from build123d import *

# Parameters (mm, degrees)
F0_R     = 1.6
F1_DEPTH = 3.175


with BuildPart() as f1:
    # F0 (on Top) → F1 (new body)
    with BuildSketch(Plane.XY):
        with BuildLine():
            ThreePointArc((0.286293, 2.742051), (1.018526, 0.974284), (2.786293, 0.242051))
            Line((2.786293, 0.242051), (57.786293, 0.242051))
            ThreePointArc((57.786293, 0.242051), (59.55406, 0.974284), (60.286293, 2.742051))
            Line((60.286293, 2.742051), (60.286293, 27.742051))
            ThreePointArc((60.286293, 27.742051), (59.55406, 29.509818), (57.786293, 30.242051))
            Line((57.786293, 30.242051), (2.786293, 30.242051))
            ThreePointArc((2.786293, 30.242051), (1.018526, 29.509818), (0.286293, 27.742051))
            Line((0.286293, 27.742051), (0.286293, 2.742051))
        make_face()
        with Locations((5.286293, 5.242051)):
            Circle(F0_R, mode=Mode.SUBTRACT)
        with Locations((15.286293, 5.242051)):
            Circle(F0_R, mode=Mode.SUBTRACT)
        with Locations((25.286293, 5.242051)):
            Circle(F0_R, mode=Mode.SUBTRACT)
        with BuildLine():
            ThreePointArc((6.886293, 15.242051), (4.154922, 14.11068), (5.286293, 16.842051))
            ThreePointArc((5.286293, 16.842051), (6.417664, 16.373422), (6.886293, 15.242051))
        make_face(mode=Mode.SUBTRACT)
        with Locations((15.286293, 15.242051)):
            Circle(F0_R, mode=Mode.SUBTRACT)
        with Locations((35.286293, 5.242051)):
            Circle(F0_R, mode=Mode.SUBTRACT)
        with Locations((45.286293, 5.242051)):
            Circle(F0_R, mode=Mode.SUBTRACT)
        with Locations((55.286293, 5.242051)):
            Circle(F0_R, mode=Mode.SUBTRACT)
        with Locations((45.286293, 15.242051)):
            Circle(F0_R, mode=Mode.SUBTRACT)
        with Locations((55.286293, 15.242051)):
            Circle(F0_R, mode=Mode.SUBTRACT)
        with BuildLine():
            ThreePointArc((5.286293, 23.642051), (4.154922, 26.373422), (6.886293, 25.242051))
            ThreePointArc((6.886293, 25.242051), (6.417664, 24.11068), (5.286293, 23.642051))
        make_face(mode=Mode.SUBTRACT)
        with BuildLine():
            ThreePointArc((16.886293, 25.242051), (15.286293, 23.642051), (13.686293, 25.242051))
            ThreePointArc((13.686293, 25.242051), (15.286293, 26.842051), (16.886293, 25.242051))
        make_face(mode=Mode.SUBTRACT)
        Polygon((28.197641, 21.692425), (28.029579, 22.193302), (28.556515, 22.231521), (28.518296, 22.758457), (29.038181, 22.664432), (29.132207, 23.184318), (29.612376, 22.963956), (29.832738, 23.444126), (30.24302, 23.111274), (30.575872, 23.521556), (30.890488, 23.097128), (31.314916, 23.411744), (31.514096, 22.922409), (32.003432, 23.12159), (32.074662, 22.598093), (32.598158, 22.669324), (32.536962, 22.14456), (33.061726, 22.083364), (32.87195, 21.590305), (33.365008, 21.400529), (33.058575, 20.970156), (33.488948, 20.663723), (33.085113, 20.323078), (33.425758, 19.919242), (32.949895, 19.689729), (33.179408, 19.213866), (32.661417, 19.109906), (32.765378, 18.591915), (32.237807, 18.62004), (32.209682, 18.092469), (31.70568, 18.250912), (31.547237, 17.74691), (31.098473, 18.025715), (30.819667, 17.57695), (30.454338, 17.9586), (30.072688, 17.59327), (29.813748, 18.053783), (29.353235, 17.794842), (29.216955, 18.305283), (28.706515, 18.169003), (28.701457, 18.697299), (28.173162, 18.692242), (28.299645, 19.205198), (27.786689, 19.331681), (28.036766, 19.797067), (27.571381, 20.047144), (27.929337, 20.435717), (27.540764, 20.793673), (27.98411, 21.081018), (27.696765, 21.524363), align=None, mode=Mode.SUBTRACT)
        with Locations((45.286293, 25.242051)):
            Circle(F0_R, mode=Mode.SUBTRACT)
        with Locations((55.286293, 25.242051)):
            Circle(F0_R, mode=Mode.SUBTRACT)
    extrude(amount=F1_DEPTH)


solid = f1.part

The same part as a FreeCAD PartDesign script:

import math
import FreeCAD as App
import Part
import Sketcher
from FreeCAD import Vector

doc = App.newDocument("Part")
params = doc.addObject("Spreadsheet::Sheet", "Params")
for row, (alias, value) in enumerate([
    ("sketch1_diameter", "3.2 mm"),
    ("sketch1_radius", "2.5 mm"),
    ("sketch1_width", "55 mm"),
    ("sketch1_height", "25 mm"),
    ("pad1_length", "3.175 mm"),
], start=1):
    params.set(f"A{row}", alias)
    params.set(f"B{row}", "=" + value)
    params.setAlias(f"B{row}", alias)

body = doc.addObject("PartDesign::Body", "Body")

# Sketch on XY plane
sketch1 = body.newObject("Sketcher::SketchObject", "Sketch")
sketch1.AttachmentSupport = (doc.getObject("XY_Plane"), [""])
sketch1.MapMode = "FlatFace"
sketch1.addGeometry([
    Part.ArcOfCircle(Part.Circle(Vector(2.786293, 2.742051, 0), Vector(0, 0, 1), 2.5), math.radians(179.999996), math.radians(270.000004)),  # 0
    Part.LineSegment(Vector(2.786293, 0.242051, 0), Vector(57.786293, 0.242051, 0)),  # 1
    Part.ArcOfCircle(Part.Circle(Vector(57.786293, 2.742051, 0), Vector(0, 0, 1), 2.5), math.radians(-90.000004), math.radians(0.000004)),  # 2
    Part.LineSegment(Vector(60.286293, 2.742051, 0), Vector(60.286293, 27.742051, 0)),  # 3
    Part.ArcOfCircle(Part.Circle(Vector(57.786293, 27.742051, 0), Vector(0, 0, 1), 2.5), math.radians(-0.000004), math.radians(90.000004)),  # 4
    Part.LineSegment(Vector(57.786293, 30.242051, 0), Vector(2.786293, 30.242051, 0)),  # 5
    Part.ArcOfCircle(Part.Circle(Vector(2.786293, 27.742051, 0), Vector(0, 0, 1), 2.5), math.radians(89.999996), math.radians(180.000004)),  # 6
    Part.LineSegment(Vector(0.286293, 27.742051, 0), Vector(0.286293, 2.742051, 0)),  # 7
    Part.Circle(Vector(5.286293, 5.242051, 0), Vector(0, 0, 1), 1.6),  # 8
    Part.Circle(Vector(15.286293, 5.242051, 0), Vector(0, 0, 1), 1.6),  # 9
    Part.Circle(Vector(25.286293, 5.242051, 0), Vector(0, 0, 1), 1.6),  # 10
    Part.ArcOfCircle(Part.Circle(Vector(5.286294, 15.242052, 0), Vector(0, 0, 1), 1.599999), math.radians(-0.000018), math.radians(90.000018)),  # 11
    Part.ArcOfCircle(Part.Circle(Vector(5.286293, 15.242051, 0), Vector(0, 0, 1), 1.6), math.radians(89.999997), math.radians(360.000003)),  # 12
    Part.Circle(Vector(15.286293, 15.242051, 0), Vector(0, 0, 1), 1.6),  # 13
    Part.Circle(Vector(35.286293, 5.242051, 0), Vector(0, 0, 1), 1.6),  # 14
    Part.Circle(Vector(45.286293, 5.242051, 0), Vector(0, 0, 1), 1.6),  # 15
    Part.Circle(Vector(55.286293, 5.242051, 0), Vector(0, 0, 1), 1.6),  # 16
    Part.Circle(Vector(45.286293, 15.242051, 0), Vector(0, 0, 1), 1.6),  # 17
    Part.Circle(Vector(55.286293, 15.242051, 0), Vector(0, 0, 1), 1.6),  # 18
    Part.ArcOfCircle(Part.Circle(Vector(5.286294, 25.24205, 0), Vector(0, 0, 1), 1.599999), math.radians(-90.000018), math.radians(0.000018)),  # 19
    Part.ArcOfCircle(Part.Circle(Vector(5.286293, 25.242051, 0), Vector(0, 0, 1), 1.6), math.radians(-0.000003), math.radians(270.000003)),  # 20
    Part.Circle(Vector(15.286293, 25.242051, 0), Vector(0, 0, 1), 1.6),  # 21
    Part.LineSegment(Vector(27.696765, 21.524363, 0), Vector(28.197641, 21.692425, 0)),  # 22
    Part.LineSegment(Vector(28.197641, 21.692425, 0), Vector(28.029579, 22.193302, 0)),  # 23
    Part.LineSegment(Vector(28.029579, 22.193302, 0), Vector(28.556515, 22.231521, 0)),  # 24
    Part.LineSegment(Vector(28.556515, 22.231521, 0), Vector(28.518296, 22.758457, 0)),  # 25
    Part.LineSegment(Vector(28.518296, 22.758457, 0), Vector(29.038181, 22.664432, 0)),  # 26
    Part.LineSegment(Vector(29.038181, 22.664432, 0), Vector(29.132207, 23.184318, 0)),  # 27
    Part.LineSegment(Vector(29.132207, 23.184318, 0), Vector(29.612376, 22.963956, 0)),  # 28
    Part.LineSegment(Vector(29.612376, 22.963956, 0), Vector(29.832738, 23.444126, 0)),  # 29
    Part.LineSegment(Vector(29.832738, 23.444126, 0), Vector(30.24302, 23.111274, 0)),  # 30
    Part.LineSegment(Vector(30.24302, 23.111274, 0), Vector(30.575872, 23.521556, 0)),  # 31
    Part.LineSegment(Vector(30.575872, 23.521556, 0), Vector(30.890488, 23.097128, 0)),  # 32
    Part.LineSegment(Vector(30.890488, 23.097128, 0), Vector(31.314916, 23.411744, 0)),  # 33
    Part.LineSegment(Vector(31.314916, 23.411744, 0), Vector(31.514096, 22.922409, 0)),  # 34
    Part.LineSegment(Vector(31.514096, 22.922409, 0), Vector(32.003432, 23.12159, 0)),  # 35
    Part.LineSegment(Vector(32.003432, 23.12159, 0), Vector(32.074662, 22.598093, 0)),  # 36
    Part.LineSegment(Vector(32.074662, 22.598093, 0), Vector(32.598158, 22.669324, 0)),  # 37
    Part.LineSegment(Vector(32.598158, 22.669324, 0), Vector(32.536962, 22.14456, 0)),  # 38
    Part.LineSegment(Vector(32.536962, 22.14456, 0), Vector(33.061726, 22.083364, 0)),  # 39
    Part.LineSegment(Vector(33.061726, 22.083364, 0), Vector(32.87195, 21.590305, 0)),  # 40
    Part.LineSegment(Vector(32.87195, 21.590305, 0), Vector(33.365008, 21.400529, 0)),  # 41
    Part.LineSegment(Vector(33.365008, 21.400529, 0), Vector(33.058575, 20.970156, 0)),  # 42
    Part.LineSegment(Vector(33.058575, 20.970156, 0), Vector(33.488948, 20.663723, 0)),  # 43
    Part.LineSegment(Vector(33.488948, 20.663723, 0), Vector(33.085113, 20.323078, 0)),  # 44
    Part.LineSegment(Vector(33.085113, 20.323078, 0), Vector(33.425758, 19.919242, 0)),  # 45
    Part.LineSegment(Vector(33.425758, 19.919242, 0), Vector(32.949895, 19.689729, 0)),  # 46
    Part.LineSegment(Vector(32.949895, 19.689729, 0), Vector(33.179408, 19.213866, 0)),  # 47
    Part.LineSegment(Vector(33.179408, 19.213866, 0), Vector(32.661417, 19.109906, 0)),  # 48
    Part.LineSegment(Vector(32.661417, 19.109906, 0), Vector(32.765378, 18.591915, 0)),  # 49
    Part.LineSegment(Vector(32.765378, 18.591915, 0), Vector(32.237807, 18.62004, 0)),  # 50
    Part.LineSegment(Vector(32.237807, 18.62004, 0), Vector(32.209682, 18.092469, 0)),  # 51
    Part.LineSegment(Vector(32.209682, 18.092469, 0), Vector(31.70568, 18.250912, 0)),  # 52
    Part.LineSegment(Vector(31.70568, 18.250912, 0), Vector(31.547237, 17.74691, 0)),  # 53
    Part.LineSegment(Vector(31.547237, 17.74691, 0), Vector(31.098473, 18.025715, 0)),  # 54
    Part.LineSegment(Vector(31.098473, 18.025715, 0), Vector(30.819667, 17.57695, 0)),  # 55
    Part.LineSegment(Vector(30.819667, 17.57695, 0), Vector(30.454338, 17.9586, 0)),  # 56
    Part.LineSegment(Vector(30.454338, 17.9586, 0), Vector(30.072688, 17.59327, 0)),  # 57
    Part.LineSegment(Vector(30.072688, 17.59327, 0), Vector(29.813748, 18.053783, 0)),  # 58
    Part.LineSegment(Vector(29.813748, 18.053783, 0), Vector(29.353235, 17.794842, 0)),  # 59
    Part.LineSegment(Vector(29.353235, 17.794842, 0), Vector(29.216955, 18.305283, 0)),  # 60
    Part.LineSegment(Vector(29.216955, 18.305283, 0), Vector(28.706515, 18.169003, 0)),  # 61
    Part.LineSegment(Vector(28.706515, 18.169003, 0), Vector(28.701457, 18.697299, 0)),  # 62
    Part.LineSegment(Vector(28.701457, 18.697299, 0), Vector(28.173162, 18.692242, 0)),  # 63
    Part.LineSegment(Vector(28.173162, 18.692242, 0), Vector(28.299645, 19.205198, 0)),  # 64
    Part.LineSegment(Vector(28.299645, 19.205198, 0), Vector(27.786689, 19.331681, 0)),  # 65
    Part.LineSegment(Vector(27.786689, 19.331681, 0), Vector(28.036766, 19.797067, 0)),  # 66
    Part.LineSegment(Vector(28.036766, 19.797067, 0), Vector(27.571381, 20.047144, 0)),  # 67
    Part.LineSegment(Vector(27.571381, 20.047144, 0), Vector(27.929337, 20.435717, 0)),  # 68
    Part.LineSegment(Vector(27.929337, 20.435717, 0), Vector(27.540764, 20.793673, 0)),  # 69
    Part.LineSegment(Vector(27.540764, 20.793673, 0), Vector(27.98411, 21.081018, 0)),  # 70
    Part.LineSegment(Vector(27.98411, 21.081018, 0), Vector(27.696765, 21.524363, 0)),  # 71
    Part.Circle(Vector(45.286293, 25.242051, 0), Vector(0, 0, 1), 1.6),  # 72
    Part.Circle(Vector(55.286293, 25.242051, 0), Vector(0, 0, 1), 1.6),  # 73
], False)
sketch1.addConstraint([
    Sketcher.Constraint("Tangent", 0, 2, 1, 1),
    Sketcher.Constraint("Tangent", 1, 2, 2, 1),
    Sketcher.Constraint("Tangent", 2, 2, 3, 1),
    Sketcher.Constraint("Tangent", 3, 2, 4, 1),
    Sketcher.Constraint("Tangent", 4, 2, 5, 1),
    Sketcher.Constraint("Tangent", 5, 2, 6, 1),
    Sketcher.Constraint("Tangent", 6, 2, 7, 1),
    Sketcher.Constraint("Tangent", 7, 2, 0, 1),
    Sketcher.Constraint("Tangent", 11, 1, 12, 2),
    Sketcher.Constraint("Coincident", 12, 1, 11, 2),
    Sketcher.Constraint("Tangent", 19, 1, 20, 2),
    Sketcher.Constraint("Coincident", 20, 1, 19, 2),
    Sketcher.Constraint("Coincident", 22, 2, 23, 1),
    Sketcher.Constraint("Coincident", 23, 2, 24, 1),
    Sketcher.Constraint("Coincident", 24, 2, 25, 1),
    Sketcher.Constraint("Coincident", 25, 2, 26, 1),
    Sketcher.Constraint("Coincident", 26, 2, 27, 1),
    Sketcher.Constraint("Coincident", 27, 2, 28, 1),
    Sketcher.Constraint("Coincident", 28, 2, 29, 1),
    Sketcher.Constraint("Coincident", 29, 2, 30, 1),
    Sketcher.Constraint("Coincident", 30, 2, 31, 1),
    Sketcher.Constraint("Coincident", 31, 2, 32, 1),
    Sketcher.Constraint("Coincident", 32, 2, 33, 1),
    Sketcher.Constraint("Coincident", 33, 2, 34, 1),
    Sketcher.Constraint("Coincident", 34, 2, 35, 1),
    Sketcher.Constraint("Coincident", 35, 2, 36, 1),
    Sketcher.Constraint("Coincident", 36, 2, 37, 1),
    Sketcher.Constraint("Coincident", 37, 2, 38, 1),
    Sketcher.Constraint("Coincident", 38, 2, 39, 1),
    Sketcher.Constraint("Coincident", 39, 2, 40, 1),
    Sketcher.Constraint("Coincident", 40, 2, 41, 1),
    Sketcher.Constraint("Coincident", 41, 2, 42, 1),
    Sketcher.Constraint("Coincident", 42, 2, 43, 1),
    Sketcher.Constraint("Coincident", 43, 2, 44, 1),
    Sketcher.Constraint("Coincident", 44, 2, 45, 1),
    Sketcher.Constraint("Coincident", 45, 2, 46, 1),
    Sketcher.Constraint("Coincident", 46, 2, 47, 1),
    Sketcher.Constraint("Coincident", 47, 2, 48, 1),
    Sketcher.Constraint("Coincident", 48, 2, 49, 1),
    Sketcher.Constraint("Coincident", 49, 2, 50, 1),
    Sketcher.Constraint("Coincident", 50, 2, 51, 1),
    Sketcher.Constraint("Coincident", 51, 2, 52, 1),
    Sketcher.Constraint("Coincident", 52, 2, 53, 1),
    Sketcher.Constraint("Coincident", 53, 2, 54, 1),
    Sketcher.Constraint("Coincident", 54, 2, 55, 1),
    Sketcher.Constraint("Coincident", 55, 2, 56, 1),
    Sketcher.Constraint("Coincident", 56, 2, 57, 1),
    Sketcher.Constraint("Coincident", 57, 2, 58, 1),
    Sketcher.Constraint("Coincident", 58, 2, 59, 1),
    Sketcher.Constraint("Coincident", 59, 2, 60, 1),
    Sketcher.Constraint("Coincident", 60, 2, 61, 1),
    Sketcher.Constraint("Coincident", 61, 2, 62, 1),
    Sketcher.Constraint("Coincident", 62, 2, 63, 1),
    Sketcher.Constraint("Coincident", 63, 2, 64, 1),
    Sketcher.Constraint("Coincident", 64, 2, 65, 1),
    Sketcher.Constraint("Coincident", 65, 2, 66, 1),
    Sketcher.Constraint("Coincident", 66, 2, 67, 1),
    Sketcher.Constraint("Coincident", 67, 2, 68, 1),
    Sketcher.Constraint("Coincident", 68, 2, 69, 1),
    Sketcher.Constraint("Coincident", 69, 2, 70, 1),
    Sketcher.Constraint("Coincident", 70, 2, 71, 1),
    Sketcher.Constraint("Coincident", 71, 2, 22, 1),
    Sketcher.Constraint("Horizontal", 1),
    Sketcher.Constraint("Vertical", 3),
    Sketcher.Constraint("Horizontal", 5),
    Sketcher.Constraint("Vertical", 7),
    Sketcher.Constraint("Equal", 0, 2),
    Sketcher.Constraint("Equal", 2, 4),
    Sketcher.Constraint("Equal", 4, 6),
    Sketcher.Constraint("Equal", 8, 9),
    Sketcher.Constraint("Equal", 9, 10),
    Sketcher.Constraint("Equal", 10, 11),
    Sketcher.Constraint("Equal", 12, 13),
    Sketcher.Constraint("Equal", 13, 14),
    Sketcher.Constraint("Equal", 14, 15),
    Sketcher.Constraint("Equal", 15, 16),
    Sketcher.Constraint("Equal", 16, 17),
    Sketcher.Constraint("Equal", 17, 18),
    Sketcher.Constraint("Equal", 18, 19),
    Sketcher.Constraint("Equal", 20, 21),
    Sketcher.Constraint("Equal", 21, 72),
    Sketcher.Constraint("Equal", 72, 73),
    Sketcher.Constraint("Perpendicular", 22, 23),
    Sketcher.Constraint("Perpendicular", 24, 25),
    Sketcher.Constraint("Perpendicular", 26, 27),
    Sketcher.Constraint("Perpendicular", 28, 29),
    Sketcher.Constraint("Perpendicular", 30, 31),
    Sketcher.Constraint("Perpendicular", 32, 33),
    Sketcher.Constraint("Perpendicular", 34, 35),
    Sketcher.Constraint("Perpendicular", 38, 39),
    Sketcher.Constraint("Perpendicular", 40, 41),
    Sketcher.Constraint("Perpendicular", 42, 43),
    Sketcher.Constraint("Perpendicular", 44, 45),
    Sketcher.Constraint("Perpendicular", 46, 47),
    Sketcher.Constraint("Perpendicular", 48, 49),
    Sketcher.Constraint("Perpendicular", 50, 51),
    Sketcher.Constraint("Perpendicular", 52, 53),
    Sketcher.Constraint("Perpendicular", 54, 55),
    Sketcher.Constraint("Perpendicular", 56, 57),
    Sketcher.Constraint("Perpendicular", 58, 59),
    Sketcher.Constraint("Perpendicular", 60, 61),
    Sketcher.Constraint("Perpendicular", 62, 63),
    Sketcher.Constraint("Perpendicular", 64, 65),
    Sketcher.Constraint("Perpendicular", 66, 67),
    Sketcher.Constraint("Perpendicular", 68, 69),
    Sketcher.Constraint("Perpendicular", 70, 71),
    Sketcher.Constraint("Horizontal", 8, 3, 9, 3),
    Sketcher.Constraint("Horizontal", 9, 3, 10, 3),
    Sketcher.Constraint("Horizontal", 12, 3, 13, 3),
    Sketcher.Constraint("Horizontal", 10, 3, 14, 3),
    Sketcher.Constraint("Horizontal", 14, 3, 15, 3),
    Sketcher.Constraint("Horizontal", 15, 3, 16, 3),
    Sketcher.Constraint("Horizontal", 13, 3, 17, 3),
    Sketcher.Constraint("Horizontal", 17, 3, 18, 3),
    Sketcher.Constraint("Horizontal", 20, 3, 21, 3),
    Sketcher.Constraint("Horizontal", 21, 3, 72, 3),
    Sketcher.Constraint("Horizontal", 72, 3, 73, 3),
    Sketcher.Constraint("Horizontal", 18, 3, 11, 1),
    Sketcher.Constraint("Horizontal", 73, 3, 20, 1),
    Sketcher.Constraint("Vertical", 8, 3, 11, 3),
    Sketcher.Constraint("Vertical", 9, 3, 13, 3),
    Sketcher.Constraint("Vertical", 15, 3, 17, 3),
    Sketcher.Constraint("Vertical", 16, 3, 18, 3),
    Sketcher.Constraint("Vertical", 12, 3, 19, 3),
    Sketcher.Constraint("Vertical", 13, 3, 21, 3),
    Sketcher.Constraint("Vertical", 17, 3, 72, 3),
    Sketcher.Constraint("Vertical", 18, 3, 73, 3),
    Sketcher.Constraint("Vertical", 20, 3, 12, 1),
    Sketcher.Constraint("Vertical", 12, 1, 19, 1),
    Sketcher.Constraint("Equal", 22, 23),
    Sketcher.Constraint("Equal", 23, 24),
    Sketcher.Constraint("Equal", 24, 25),
    Sketcher.Constraint("Equal", 25, 26),
    Sketcher.Constraint("Equal", 26, 27),
    Sketcher.Constraint("Equal", 27, 28),
    Sketcher.Constraint("Equal", 28, 29),
    Sketcher.Constraint("Equal", 29, 30),
    Sketcher.Constraint("Equal", 30, 31),
    Sketcher.Constraint("Equal", 31, 32),
    Sketcher.Constraint("Equal", 32, 33),
    Sketcher.Constraint("Equal", 33, 34),
    Sketcher.Constraint("Equal", 34, 35),
    Sketcher.Constraint("Equal", 35, 36),
    Sketcher.Constraint("Equal", 36, 37),
    Sketcher.Constraint("Equal", 37, 38),
    Sketcher.Constraint("Equal", 38, 39),
    Sketcher.Constraint("Equal", 39, 40),
    Sketcher.Constraint("Equal", 40, 41),
    Sketcher.Constraint("Equal", 41, 42),
    Sketcher.Constraint("Equal", 42, 43),
    Sketcher.Constraint("Equal", 43, 44),
    Sketcher.Constraint("Equal", 44, 45),
    Sketcher.Constraint("Equal", 45, 46),
    Sketcher.Constraint("Equal", 46, 47),
    Sketcher.Constraint("Equal", 47, 48),
    Sketcher.Constraint("Equal", 48, 49),
    Sketcher.Constraint("Equal", 49, 50),
    Sketcher.Constraint("Equal", 50, 51),
    Sketcher.Constraint("Equal", 51, 52),
    Sketcher.Constraint("Equal", 52, 53),
    Sketcher.Constraint("Equal", 53, 54),
    Sketcher.Constraint("Equal", 54, 55),
    Sketcher.Constraint("Equal", 55, 56),
    Sketcher.Constraint("Equal", 56, 57),
    Sketcher.Constraint("Equal", 57, 58),
    Sketcher.Constraint("Equal", 58, 59),
    Sketcher.Constraint("Equal", 59, 60),
    Sketcher.Constraint("Equal", 60, 61),
    Sketcher.Constraint("Equal", 61, 62),
    Sketcher.Constraint("Equal", 62, 63),
    Sketcher.Constraint("Equal", 63, 64),
    Sketcher.Constraint("Equal", 64, 65),
    Sketcher.Constraint("Equal", 65, 66),
    Sketcher.Constraint("Equal", 66, 67),
    Sketcher.Constraint("Equal", 67, 68),
    Sketcher.Constraint("Equal", 68, 69),
    Sketcher.Constraint("Equal", 69, 70),
    Sketcher.Constraint("Equal", 70, 71),
    Sketcher.Constraint("Diameter", 8, 3.2),
    Sketcher.Constraint("Radius", 0, 2.5),
    Sketcher.Constraint("DistanceX", 1, 1, 1, 2, 55.0),
    Sketcher.Constraint("DistanceY", 3, 1, 3, 2, 25.0),
    Sketcher.Constraint("DistanceY", -1, 1, 23, 2, 22.193302),
    Sketcher.Constraint("DistanceY", -1, 1, 56, 2, 17.9586),
    Sketcher.Constraint("DistanceY", -1, 1, 62, 2, 18.697299),
    Sketcher.Constraint("Distance", 22, 0.52832),
    Sketcher.Constraint("DistanceY", -1, 1, 0, 3, 2.742051),
    Sketcher.Constraint("DistanceY", -1, 1, 8, 3, 5.242051),
    Sketcher.Constraint("DistanceY", -1, 1, 11, 3, 15.242052),
    Sketcher.Constraint("DistanceY", -1, 1, 19, 3, 25.24205),
    Sketcher.Constraint("DistanceX", -1, 1, 22, 2, 28.197641),
    Sketcher.Constraint("DistanceX", -1, 1, 23, 2, 28.029579),
    Sketcher.Constraint("DistanceY", -1, 1, 24, 2, 22.231521),
    Sketcher.Constraint("DistanceX", -1, 1, 26, 2, 29.038181),
    Sketcher.Constraint("DistanceX", -1, 1, 30, 2, 30.24302),
    Sketcher.Constraint("DistanceX", -1, 1, 32, 2, 30.890488),
    Sketcher.Constraint("DistanceY", -1, 1, 32, 2, 23.097128),
    Sketcher.Constraint("DistanceY", -1, 1, 34, 2, 22.922409),
    Sketcher.Constraint("DistanceX", -1, 1, 36, 2, 32.074662),
    Sketcher.Constraint("DistanceY", -1, 1, 38, 2, 22.14456),
    Sketcher.Constraint("DistanceX", -1, 1, 40, 2, 32.87195),
    Sketcher.Constraint("DistanceX", -1, 1, 41, 2, 33.365008),
    Sketcher.Constraint("DistanceX", -1, 1, 45, 2, 33.425758),
    Sketcher.Constraint("DistanceY", -1, 1, 46, 2, 19.689729),
    Sketcher.Constraint("DistanceX", -1, 1, 47, 2, 33.179408),
    Sketcher.Constraint("DistanceY", -1, 1, 50, 2, 18.62004),
    Sketcher.Constraint("DistanceY", -1, 1, 51, 2, 18.092469),
    Sketcher.Constraint("DistanceX", -1, 1, 52, 2, 31.70568),
    Sketcher.Constraint("DistanceY", -1, 1, 55, 2, 17.57695),
    Sketcher.Constraint("DistanceX", -1, 1, 58, 2, 29.813748),
    Sketcher.Constraint("DistanceY", -1, 1, 63, 2, 18.692242),
    Sketcher.Constraint("DistanceX", -1, 1, 65, 2, 27.786689),
    Sketcher.Constraint("DistanceX", -1, 1, 67, 2, 27.571381),
    Sketcher.Constraint("DistanceX", -1, 1, 0, 3, 2.786293),
    Sketcher.Constraint("DistanceX", -1, 1, 8, 3, 5.286293),
    Sketcher.Constraint("DistanceX", -1, 1, 9, 3, 15.286293),
    Sketcher.Constraint("DistanceX", -1, 1, 10, 3, 25.286293),
    Sketcher.Constraint("DistanceX", -1, 1, 14, 3, 35.286293),
    Sketcher.Constraint("DistanceX", -1, 1, 15, 3, 45.286293),
    Sketcher.Constraint("DistanceX", -1, 1, 16, 3, 55.286293),
])
sketch1.setExpression("Constraints[178]", "Params.sketch1_diameter")
sketch1.setExpression("Constraints[179]", "Params.sketch1_radius")
sketch1.setExpression("Constraints[180]", "Params.sketch1_width")
sketch1.setExpression("Constraints[181]", "Params.sketch1_height")
pad1 = body.newObject("PartDesign::Pad", "Pad")
pad1.Profile = sketch1
pad1.setExpression("Length", "Params.pad1_length")

doc.recompute()
